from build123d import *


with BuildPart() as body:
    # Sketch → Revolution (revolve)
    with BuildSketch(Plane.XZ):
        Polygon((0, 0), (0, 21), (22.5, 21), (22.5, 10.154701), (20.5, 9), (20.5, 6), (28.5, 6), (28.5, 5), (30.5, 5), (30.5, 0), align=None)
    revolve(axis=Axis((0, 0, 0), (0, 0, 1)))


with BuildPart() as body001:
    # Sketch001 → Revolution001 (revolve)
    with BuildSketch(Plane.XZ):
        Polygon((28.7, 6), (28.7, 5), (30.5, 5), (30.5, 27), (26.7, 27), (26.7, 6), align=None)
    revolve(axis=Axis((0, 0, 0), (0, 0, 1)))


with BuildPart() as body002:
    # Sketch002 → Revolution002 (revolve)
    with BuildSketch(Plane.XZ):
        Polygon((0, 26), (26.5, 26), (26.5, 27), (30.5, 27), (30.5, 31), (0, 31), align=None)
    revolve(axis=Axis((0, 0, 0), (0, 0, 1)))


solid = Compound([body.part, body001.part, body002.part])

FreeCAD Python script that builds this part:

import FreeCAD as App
import Part
import Sketcher

V = App.Vector
Q = App.Units.Quantity

doc = App.newDocument("Part")
body = doc.addObject("PartDesign::Body", "Body")

sketch1 = doc.addObject("Sketcher::SketchObject", "Sketch")
body.addObject(sketch1)
sketch1.AttachmentSupport = (doc.XZ_Plane, [""])
sketch1.MapMode = "FlatFace"
sketch1.addGeometry([
    Part.LineSegment(V(0, 21, 0), V(0, 0, 0)),
    Part.LineSegment(V(0, 0, 0), V(30.5, 0, 0)),
    Part.LineSegment(V(30.5, 0, 0), V(30.5, 5, 0)),
    Part.LineSegment(V(30.5, 5, 0), V(28.5, 5, 0)),
    Part.LineSegment(V(28.5, 5, 0), V(28.5, 6, 0)),
    Part.LineSegment(V(28.5, 6, 0), V(20.5, 6, 0)),
    Part.LineSegment(V(20.5, 6, 0), V(20.5, 9, 0)),
    Part.LineSegment(V(20.5, 9, 0), V(22.5, 10.2, 0)),
    Part.LineSegment(V(22.5, 10.2, 0), V(22.5, 21, 0)),
    Part.LineSegment(V(22.5, 21, 0), V(0, 21, 0)),
], False)
sketch1.addConstraint([
    Sketcher.Constraint("Coincident", 0, 2, 1, 1),
    Sketcher.Constraint("Coincident", 1, 2, 2, 1),
    Sketcher.Constraint("Coincident", 2, 2, 3, 1),
    Sketcher.Constraint("Coincident", 3, 2, 4, 1),
    Sketcher.Constraint("Coincident", 4, 2, 5, 1),
    Sketcher.Constraint("Coincident", 5, 2, 6, 1),
    Sketcher.Constraint("Coincident", 6, 2, 7, 1),
    Sketcher.Constraint("Coincident", 7, 2, 8, 1),
    Sketcher.Constraint("Coincident", 8, 2, 9, 1),
    Sketcher.Constraint("Coincident", 9, 2, 0, 1),
    Sketcher.Constraint("Vertical", 0),
    Sketcher.Constraint("Horizontal", 1),
    Sketcher.Constraint("Vertical", 2),
    Sketcher.Constraint("Horizontal", 3),
    Sketcher.Constraint("Vertical", 4),
    Sketcher.Constraint("Horizontal", 5),
    Sketcher.Constraint("Vertical", 6),
    Sketcher.Constraint("Vertical", 8),
    Sketcher.Constraint("Horizontal", 9),
    Sketcher.Constraint("Coincident", 0, 2, -1, 1),
    Sketcher.Constraint("DistanceX", 3, 2, 3, 1, Q("2 mm")),
    Sketcher.Constraint("DistanceX", 5, 2, 5, 1, Q("8 mm")),
    Sketcher.Constraint("DistanceY", 0, 2, 0, 1, Q("21 mm")),
    Sketcher.Constraint("DistanceY", 2, 1, 2, 2, Q("5 mm")),
    Sketcher.Constraint("DistanceY", 4, 1, 4, 2, Q("1 mm")),
    Sketcher.Constraint("DistanceY", 6, 1, 6, 2, Q("3 mm")),
    Sketcher.Constraint("Angle", 7, Q("30.00001 deg")),
    Sketcher.Constraint("DistanceX", 1, 1, 1, 2, Q("30.5 mm")),
    Sketcher.Constraint("DistanceX", 9, 2, 9, 1, Q("22.5 mm")),
])
revolution = doc.addObject("PartDesign::Revolution", "Revolution")
body.addObject(revolution)
revolution.Profile = sketch1
revolution.ReferenceAxis = (sketch1, ["V_Axis"])
revolution.Angle = 360
body2 = doc.addObject("PartDesign::Body", "Body001")

sketch2 = doc.addObject("Sketcher::SketchObject", "Sketch001")
body2.addObject(sketch2)
sketch2.AttachmentSupport = (doc.getObject("XZ_Plane001"), [""])
sketch2.MapMode = "FlatFace"
sketch2.addGeometry([
    Part.LineSegment(V(28.7, 6, 0), V(28.7, 5, 0)),
    Part.LineSegment(V(28.7, 5, 0), V(30.5, 5, 0)),
    Part.LineSegment(V(30.5, 5, 0), V(30.5, 27, 0)),
    Part.LineSegment(V(30.5, 27, 0), V(26.7, 27, 0)),
    Part.LineSegment(V(26.7, 27, 0), V(26.7, 6, 0)),
    Part.LineSegment(V(26.7, 6, 0), V(28.7, 6, 0)),
], False)
sketch2.addConstraint([
    Sketcher.Constraint("Coincident", 0, 2, 1, 1),
    Sketcher.Constraint("Coincident", 1, 2, 2, 1),
    Sketcher.Constraint("Coincident", 2, 2, 3, 1),
    Sketcher.Constraint("Coincident", 3, 2, 4, 1),
    Sketcher.Constraint("Coincident", 4, 2, 5, 1),
    Sketcher.Constraint("Coincident", 5, 2, 0, 1),
    Sketcher.Constraint("Vertical", 0),
    Sketcher.Constraint("Horizontal", 1),
    Sketcher.Constraint("Vertical", 2),
    Sketcher.Constraint("Horizontal", 3),
    Sketcher.Constraint("Vertical", 4),
    Sketcher.Constraint("Horizontal", 5),
    Sketcher.Constraint("DistanceX", 5, 1, 5, 2, Q("2 mm")),
    Sketcher.Constraint("DistanceY", 0, 2, 0, 1, Q("1 mm")),
    Sketcher.Constraint("DistanceY", 2, 1, 2, 2, Q("22 mm")),
    Sketcher.Constraint("DistanceX", 1, 1, 1, 2, Q("1.8 mm")),
    Sketcher.Constraint("DistanceY", -1, 1, 0, 2, Q("5 mm")),
    Sketcher.Constraint("DistanceX", -1, 1, 0, 2, Q("28.7 mm")),
])
revolution2 = doc.addObject("PartDesign::Revolution", "Revolution001")
body2.addObject(revolution2)
revolution2.Profile = sketch2
revolution2.ReferenceAxis = (sketch2, ["V_Axis"])
revolution2.Angle = 360
body3 = doc.addObject("PartDesign::Body", "Body002")

sketch3 = doc.addObject("Sketcher::SketchObject", "Sketch002")
body3.addObject(sketch3)
sketch3.AttachmentSupport = (doc.getObject("XZ_Plane002"), [""])
sketch3.MapMode = "FlatFace"
sketch3.addGeometry([
    Part.LineSegment(V(0, 26, 0), V(26.5, 26, 0)),
    Part.LineSegment(V(26.5, 26, 0), V(26.5, 27, 0)),
    Part.LineSegment(V(26.5, 27, 0), V(30.5, 27, 0)),
    Part.LineSegment(V(30.5, 27, 0), V(30.5, 31, 0)),
    Part.LineSegment(V(30.5, 31, 0), V(0, 31, 0)),
    Part.LineSegment(V(0, 31, 0), V(0, 26, 0)),
], False)
sketch3.addConstraint([
    Sketcher.Constraint("Coincident", 0, 2, 1, 1),
    Sketcher.Constraint("Coincident", 1, 2, 2, 1),
    Sketcher.Constraint("Coincident", 2, 2, 3, 1),
    Sketcher.Constraint("Coincident", 3, 2, 4, 1),
    Sketcher.Constraint("Coincident", 4, 2, 5, 1),
    Sketcher.Constraint("Coincident", 5, 2, 0, 1),
    Sketcher.Constraint("Horizontal", 0),
    Sketcher.Constraint("Vertical", 1),
    Sketcher.Constraint("Horizontal", 2),
    Sketcher.Constraint("Vertical", 3),
    Sketcher.Constraint("Horizontal", 4),
    Sketcher.Constraint("Vertical", 5),
    Sketcher.Constraint("PointOnObject", 4, 2, -2),
    Sketcher.Constraint("Equal", 2, 3),
    Sketcher.Constraint("DistanceX", 2, 1, 2, 2, Q("4 mm")),
    Sketcher.Constraint("DistanceY", 1, 1, 1, 2, Q("1 mm")),
    Sketcher.Constraint("DistanceX", 0, 1, 0, 2, Q("26.5 mm")),
    Sketcher.Constraint("DistanceY", -1, 1, 0, 2, Q("26 mm")),
])
revolution3 = doc.addObject("PartDesign::Revolution", "Revolution002")
body3.addObject(revolution3)
revolution3.Profile = sketch3
revolution3.ReferenceAxis = (sketch3, ["V_Axis"])
revolution3.Angle = 360

doc.recompute()
